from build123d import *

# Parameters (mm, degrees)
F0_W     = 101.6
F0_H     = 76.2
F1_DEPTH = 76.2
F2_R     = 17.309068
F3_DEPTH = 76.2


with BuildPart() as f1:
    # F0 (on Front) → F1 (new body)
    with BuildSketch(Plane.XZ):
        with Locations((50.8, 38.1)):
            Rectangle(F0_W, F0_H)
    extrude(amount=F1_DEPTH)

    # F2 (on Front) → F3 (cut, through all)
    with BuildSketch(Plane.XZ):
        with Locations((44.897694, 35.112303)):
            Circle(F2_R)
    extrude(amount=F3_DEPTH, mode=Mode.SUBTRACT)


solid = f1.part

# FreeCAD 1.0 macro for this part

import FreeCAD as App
import Part
import Sketcher

V = App.Vector
Q = App.Units.Quantity


def add_polygon(sketch, points):
    """Adds a closed chain of lines whose ends are joined by coincident constraints."""
    first, n = sketch.GeometryCount, len(points)
    for a, b in zip(points, points[1:] + points[:1]):
        sketch.addGeometry(Part.LineSegment(App.Vector(*a, 0), App.Vector(*b, 0)), False)
    for i in range(n):
        sketch.addConstraint(Sketcher.Constraint("Coincident", first + i, 2, first + (i + 1) % n, 1))

doc = App.newDocument("Part")
body = doc.addObject("PartDesign::Body", "Body")

# Sketch on XZ plane
sketch1 = body.newObject("Sketcher::SketchObject", "Sketch")
sketch1.AttachmentSupport = (doc.getObject("XZ_Plane"), [""])
sketch1.MapMode = "FlatFace"
add_polygon(sketch1, [(0, 76.2), (0, 0), (101.6, 0), (101.6, 76.2)])  # lines 0-3
sketch1.addConstraint(Sketcher.Constraint("Vertical", 0))
sketch1.addConstraint(Sketcher.Constraint("Horizontal", 1))
sketch1.addConstraint(Sketcher.Constraint("Vertical", 2))
sketch1.addConstraint(Sketcher.Constraint("Horizontal", 3))
sketch1.addConstraint(Sketcher.Constraint("Coincident", 0, 2, -1, 1))
sketch1.addConstraint(Sketcher.Constraint("DistanceX", 1, 1, 1, 2, Q("4 in")))
sketch1.addConstraint(Sketcher.Constraint("DistanceY", 0, 2, 0, 1, Q("3 in")))
pad1 = body.newObject("PartDesign::Pad", "Pad")
pad1.Profile = sketch1
pad1.Length = Q("3 in")

# Sketch on XZ plane
sketch2 = body.newObject("Sketcher::SketchObject", "Sketch001")
sketch2.AttachmentSupport = (doc.getObject("XZ_Plane"), [""])
sketch2.MapMode = "FlatFace"
sketch2.addGeometry(Part.Circle(V(44.897694, 35.112303, 0), V(0, 0, 1), 17.309068), False)
sketch2.addConstraint(Sketcher.Constraint("Diameter", 0, Q("34.618136 mm")))
sketch2.addConstraint(Sketcher.Constraint("DistanceX", -1, 1, 0, 3, Q("44.897694 mm")))
sketch2.addConstraint(Sketcher.Constraint("DistanceY", -1, 1, 0, 3, Q("35.112303 mm")))
pocket1 = body.newObject("PartDesign::Pocket", "Pocket")
pocket1.Profile = sketch2
pocket1.Type = "ThroughAll"
pocket1.Reversed = True

doc.recompute()
